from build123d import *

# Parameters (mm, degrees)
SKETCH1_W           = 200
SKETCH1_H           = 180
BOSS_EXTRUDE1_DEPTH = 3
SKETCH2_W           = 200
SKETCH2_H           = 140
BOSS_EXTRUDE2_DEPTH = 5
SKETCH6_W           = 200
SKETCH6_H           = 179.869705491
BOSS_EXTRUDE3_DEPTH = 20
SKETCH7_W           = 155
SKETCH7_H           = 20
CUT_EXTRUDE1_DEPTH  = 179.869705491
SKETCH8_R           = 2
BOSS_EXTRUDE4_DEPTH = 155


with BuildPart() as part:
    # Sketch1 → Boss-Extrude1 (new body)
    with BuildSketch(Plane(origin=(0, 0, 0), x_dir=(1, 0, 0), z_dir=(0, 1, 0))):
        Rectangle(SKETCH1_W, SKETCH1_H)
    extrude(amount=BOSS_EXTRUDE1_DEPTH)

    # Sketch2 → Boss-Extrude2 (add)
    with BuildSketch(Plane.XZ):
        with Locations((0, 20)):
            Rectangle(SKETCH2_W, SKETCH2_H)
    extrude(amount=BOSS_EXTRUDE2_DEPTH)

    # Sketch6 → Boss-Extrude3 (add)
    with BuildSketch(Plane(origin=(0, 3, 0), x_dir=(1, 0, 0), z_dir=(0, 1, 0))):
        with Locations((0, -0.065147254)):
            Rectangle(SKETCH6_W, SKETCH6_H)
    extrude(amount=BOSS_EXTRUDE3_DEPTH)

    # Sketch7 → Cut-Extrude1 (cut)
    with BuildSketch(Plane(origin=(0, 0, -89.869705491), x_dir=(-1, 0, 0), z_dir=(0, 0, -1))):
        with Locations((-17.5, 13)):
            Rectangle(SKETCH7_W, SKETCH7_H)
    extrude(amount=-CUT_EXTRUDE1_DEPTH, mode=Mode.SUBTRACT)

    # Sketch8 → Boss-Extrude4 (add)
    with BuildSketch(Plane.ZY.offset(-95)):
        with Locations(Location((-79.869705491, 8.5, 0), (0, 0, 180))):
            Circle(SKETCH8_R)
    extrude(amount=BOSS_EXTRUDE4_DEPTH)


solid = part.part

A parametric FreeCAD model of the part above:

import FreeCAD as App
import Part
import Sketcher
from FreeCAD import Vector
Q = App.Units.Quantity

doc = App.newDocument("Part")
body = doc.addObject("PartDesign::Body", "Body")

# Sketch on XZ plane
sketch1 = body.newObject("Sketcher::SketchObject", "Sketch")
sketch1.AttachmentSupport = (doc.getObject("XZ_Plane"), [""])
sketch1.MapMode = "FlatFace"
sketch1.addGeometry(Part.LineSegment(Vector(-100, -90, 0), Vector(-100, 90, 0)), False)
sketch1.addGeometry(Part.LineSegment(Vector(-100, 90, 0), Vector(100, 90, 0)), False)
sketch1.addGeometry(Part.LineSegment(Vector(100, 90, 0), Vector(100, -90, 0)), False)
sketch1.addGeometry(Part.LineSegment(Vector(100, -90, 0), Vector(-100, -90, 0)), False)
sketch1.addConstraint(Sketcher.Constraint("Coincident", 0, 2, 1, 1))
sketch1.addConstraint(Sketcher.Constraint("Coincident", 1, 2, 2, 1))
sketch1.addConstraint(Sketcher.Constraint("Coincident", 2, 2, 3, 1))
sketch1.addConstraint(Sketcher.Constraint("Coincident", 3, 2, 0, 1))
sketch1.addConstraint(Sketcher.Constraint("Vertical", 0))
sketch1.addConstraint(Sketcher.Constraint("Horizontal", 1))
sketch1.addConstraint(Sketcher.Constraint("Vertical", 2))
sketch1.addConstraint(Sketcher.Constraint("Horizontal", 3))
sketch1.addConstraint(Sketcher.Constraint("Symmetric", 0, 2, 2, 2, -1, 1))
sketch1.addConstraint(Sketcher.Constraint("DistanceX", 1, 1, 1, 2, Q("200 mm")))
sketch1.addConstraint(Sketcher.Constraint("DistanceY", 0, 1, 0, 2, Q("180 mm")))
pad1 = body.newObject("PartDesign::Pad", "Pad")
pad1.Profile = sketch1
pad1.Length = 3
pad1.Reversed = True

# Sketch on XZ plane
sketch2 = body.newObject("Sketcher::SketchObject", "Sketch001")
sketch2.AttachmentSupport = (doc.getObject("XZ_Plane"), [""])
sketch2.MapMode = "FlatFace"
sketch2.addGeometry(Part.LineSegment(Vector(-100, 90, 0), Vector(-100, -50, 0)), False)
sketch2.addGeometry(Part.LineSegment(Vector(-100, -50, 0), Vector(100, -50, 0)), False)
sketch2.addGeometry(Part.LineSegment(Vector(100, -50, 0), Vector(100, 90, 0)), False)
sketch2.addGeometry(Part.LineSegment(Vector(100, 90, 0), Vector(-100, 90, 0)), False)
sketch2.addConstraint(Sketcher.Constraint("Coincident", 0, 2, 1, 1))
sketch2.addConstraint(Sketcher.Constraint("Coincident", 1, 2, 2, 1))
sketch2.addConstraint(Sketcher.Constraint("Coincident", 2, 2, 3, 1))
sketch2.addConstraint(Sketcher.Constraint("Coincident", 3, 2, 0, 1))
sketch2.addConstraint(Sketcher.Constraint("Vertical", 0))
sketch2.addConstraint(Sketcher.Constraint("Horizontal", 1))
sketch2.addConstraint(Sketcher.Constraint("Vertical", 2))
sketch2.addConstraint(Sketcher.Constraint("Horizontal", 3))
sketch2.addConstraint(Sketcher.Constraint("DistanceX", 1, 1, 1, 2, Q("200 mm")))
sketch2.addConstraint(Sketcher.Constraint("DistanceY", 0, 2, 0, 1, Q("140 mm")))
sketch2.addConstraint(Sketcher.Constraint("DistanceX", 0, 2, -1, 1, Q("100 mm")))
sketch2.addConstraint(Sketcher.Constraint("DistanceY", 0, 2, -1, 1, Q("50 mm")))
pad2 = body.newObject("PartDesign::Pad", "Pad001")
pad2.Profile = sketch2
pad2.Length = 5

# Sketch on XZ plane
sketch3 = body.newObject("Sketcher::SketchObject", "Sketch002")
sketch3.AttachmentSupport = (doc.getObject("XZ_Plane"), [""])
sketch3.MapMode = "FlatFace"
sketch3.AttachmentOffset = App.Placement(Vector(0, 0, -3), App.Rotation())
sketch3.addGeometry(Part.LineSegment(Vector(-100, -90, 0), Vector(-100, 90, 0)), False)
sketch3.addGeometry(Part.LineSegment(Vector(-100, 90, 0), Vector(100, 90, 0)), False)
sketch3.addGeometry(Part.LineSegment(Vector(100, 90, 0), Vector(100, -90, 0)), False)
sketch3.addGeometry(Part.LineSegment(Vector(100, -90, 0), Vector(-100, -90, 0)), False)
sketch3.addConstraint(Sketcher.Constraint("Coincident", 0, 2, 1, 1))
sketch3.addConstraint(Sketcher.Constraint("Coincident", 1, 2, 2, 1))
sketch3.addConstraint(Sketcher.Constraint("Coincident", 2, 2, 3, 1))
sketch3.addConstraint(Sketcher.Constraint("Coincident", 3, 2, 0, 1))
sketch3.addConstraint(Sketcher.Constraint("Vertical", 0))
sketch3.addConstraint(Sketcher.Constraint("Horizontal", 1))
sketch3.addConstraint(Sketcher.Constraint("Vertical", 2))
sketch3.addConstraint(Sketcher.Constraint("Horizontal", 3))
sketch3.addConstraint(Sketcher.Constraint("DistanceX", 1, 1, 1, 2, Q("200 mm")))
sketch3.addConstraint(Sketcher.Constraint("DistanceX", 0, 2, -1, 1, Q("100 mm")))
sketch3.addConstraint(Sketcher.Constraint("DistanceY", -1, 1, 0, 2, Q("90 mm")))
sketch3.addConstraint(Sketcher.Constraint("DistanceY", 0, 1, 0, 2, Q("179.869705 mm")))
pad3 = body.newObject("PartDesign::Pad", "Pad002")
pad3.Profile = sketch3
pad3.Length = 20
pad3.Reversed = True

# Sketch on XY plane
sketch4 = body.newObject("Sketcher::SketchObject", "Sketch003")
sketch4.AttachmentSupport = (doc.getObject("XY_Plane"), [""])
sketch4.MapMode = "FlatFace"
sketch4.AttachmentOffset = App.Placement(Vector(0, 0, -89.869705), App.Rotation())
sketch4.addGeometry(Part.LineSegment(Vector(95, 23, 0), Vector(95, 3, 0)), False)
sketch4.addGeometry(Part.LineSegment(Vector(95, 3, 0), Vector(-60, 3, 0)), False)
sketch4.addGeometry(Part.LineSegment(Vector(-60, 3, 0), Vector(-60, 23, 0)), False)
sketch4.addGeometry(Part.LineSegment(Vector(-60, 23, 0), Vector(95, 23, 0)), False)
sketch4.addConstraint(Sketcher.Constraint("Coincident", 0, 2, 1, 1))
sketch4.addConstraint(Sketcher.Constraint("Coincident", 1, 2, 2, 1))
sketch4.addConstraint(Sketcher.Constraint("Coincident", 2, 2, 3, 1))
sketch4.addConstraint(Sketcher.Constraint("Coincident", 3, 2, 0, 1))
sketch4.addConstraint(Sketcher.Constraint("Vertical", 0))
sketch4.addConstraint(Sketcher.Constraint("Horizontal", 1))
sketch4.addConstraint(Sketcher.Constraint("Vertical", 2))
sketch4.addConstraint(Sketcher.Constraint("Horizontal", 3))
sketch4.addConstraint(Sketcher.Constraint("DistanceX", 1, 2, 1, 1, Q("155 mm")))
sketch4.addConstraint(Sketcher.Constraint("DistanceY", 0, 2, 0, 1, Q("20 mm")))
sketch4.addConstraint(Sketcher.Constraint("DistanceX", -1, 1, 0, 2, Q("95 mm")))
sketch4.addConstraint(Sketcher.Constraint("DistanceY", -1, 1, 0, 2, Q("3 mm")))
pocket1 = body.newObject("PartDesign::Pocket", "Pocket")
pocket1.Profile = sketch4
pocket1.Length = 179.869705
pocket1.Reversed = True

# Sketch on YZ plane
sketch5 = body.newObject("Sketcher::SketchObject", "Sketch004")
sketch5.AttachmentSupport = (doc.getObject("YZ_Plane"), [""])
sketch5.MapMode = "FlatFace"
sketch5.AttachmentOffset = App.Placement(Vector(0, 0, 95), App.Rotation())
sketch5.addGeometry(Part.Circle(Vector(8.5, -79.9, 0), Vector(0, 0, 1), 2), False)
sketch5.addConstraint(Sketcher.Constraint("Diameter", 0, Q("4 mm")))
sketch5.addConstraint(Sketcher.Constraint("DistanceX", -1, 1, 0, 3, Q("8.5 mm")))
sketch5.addConstraint(Sketcher.Constraint("DistanceY", 0, 3, -1, 1, Q("79.869705 mm")))
pad4 = body.newObject("PartDesign::Pad", "Pad003")
pad4.Profile = sketch5
pad4.Length = 155
pad4.Reversed = True

doc.recompute()
